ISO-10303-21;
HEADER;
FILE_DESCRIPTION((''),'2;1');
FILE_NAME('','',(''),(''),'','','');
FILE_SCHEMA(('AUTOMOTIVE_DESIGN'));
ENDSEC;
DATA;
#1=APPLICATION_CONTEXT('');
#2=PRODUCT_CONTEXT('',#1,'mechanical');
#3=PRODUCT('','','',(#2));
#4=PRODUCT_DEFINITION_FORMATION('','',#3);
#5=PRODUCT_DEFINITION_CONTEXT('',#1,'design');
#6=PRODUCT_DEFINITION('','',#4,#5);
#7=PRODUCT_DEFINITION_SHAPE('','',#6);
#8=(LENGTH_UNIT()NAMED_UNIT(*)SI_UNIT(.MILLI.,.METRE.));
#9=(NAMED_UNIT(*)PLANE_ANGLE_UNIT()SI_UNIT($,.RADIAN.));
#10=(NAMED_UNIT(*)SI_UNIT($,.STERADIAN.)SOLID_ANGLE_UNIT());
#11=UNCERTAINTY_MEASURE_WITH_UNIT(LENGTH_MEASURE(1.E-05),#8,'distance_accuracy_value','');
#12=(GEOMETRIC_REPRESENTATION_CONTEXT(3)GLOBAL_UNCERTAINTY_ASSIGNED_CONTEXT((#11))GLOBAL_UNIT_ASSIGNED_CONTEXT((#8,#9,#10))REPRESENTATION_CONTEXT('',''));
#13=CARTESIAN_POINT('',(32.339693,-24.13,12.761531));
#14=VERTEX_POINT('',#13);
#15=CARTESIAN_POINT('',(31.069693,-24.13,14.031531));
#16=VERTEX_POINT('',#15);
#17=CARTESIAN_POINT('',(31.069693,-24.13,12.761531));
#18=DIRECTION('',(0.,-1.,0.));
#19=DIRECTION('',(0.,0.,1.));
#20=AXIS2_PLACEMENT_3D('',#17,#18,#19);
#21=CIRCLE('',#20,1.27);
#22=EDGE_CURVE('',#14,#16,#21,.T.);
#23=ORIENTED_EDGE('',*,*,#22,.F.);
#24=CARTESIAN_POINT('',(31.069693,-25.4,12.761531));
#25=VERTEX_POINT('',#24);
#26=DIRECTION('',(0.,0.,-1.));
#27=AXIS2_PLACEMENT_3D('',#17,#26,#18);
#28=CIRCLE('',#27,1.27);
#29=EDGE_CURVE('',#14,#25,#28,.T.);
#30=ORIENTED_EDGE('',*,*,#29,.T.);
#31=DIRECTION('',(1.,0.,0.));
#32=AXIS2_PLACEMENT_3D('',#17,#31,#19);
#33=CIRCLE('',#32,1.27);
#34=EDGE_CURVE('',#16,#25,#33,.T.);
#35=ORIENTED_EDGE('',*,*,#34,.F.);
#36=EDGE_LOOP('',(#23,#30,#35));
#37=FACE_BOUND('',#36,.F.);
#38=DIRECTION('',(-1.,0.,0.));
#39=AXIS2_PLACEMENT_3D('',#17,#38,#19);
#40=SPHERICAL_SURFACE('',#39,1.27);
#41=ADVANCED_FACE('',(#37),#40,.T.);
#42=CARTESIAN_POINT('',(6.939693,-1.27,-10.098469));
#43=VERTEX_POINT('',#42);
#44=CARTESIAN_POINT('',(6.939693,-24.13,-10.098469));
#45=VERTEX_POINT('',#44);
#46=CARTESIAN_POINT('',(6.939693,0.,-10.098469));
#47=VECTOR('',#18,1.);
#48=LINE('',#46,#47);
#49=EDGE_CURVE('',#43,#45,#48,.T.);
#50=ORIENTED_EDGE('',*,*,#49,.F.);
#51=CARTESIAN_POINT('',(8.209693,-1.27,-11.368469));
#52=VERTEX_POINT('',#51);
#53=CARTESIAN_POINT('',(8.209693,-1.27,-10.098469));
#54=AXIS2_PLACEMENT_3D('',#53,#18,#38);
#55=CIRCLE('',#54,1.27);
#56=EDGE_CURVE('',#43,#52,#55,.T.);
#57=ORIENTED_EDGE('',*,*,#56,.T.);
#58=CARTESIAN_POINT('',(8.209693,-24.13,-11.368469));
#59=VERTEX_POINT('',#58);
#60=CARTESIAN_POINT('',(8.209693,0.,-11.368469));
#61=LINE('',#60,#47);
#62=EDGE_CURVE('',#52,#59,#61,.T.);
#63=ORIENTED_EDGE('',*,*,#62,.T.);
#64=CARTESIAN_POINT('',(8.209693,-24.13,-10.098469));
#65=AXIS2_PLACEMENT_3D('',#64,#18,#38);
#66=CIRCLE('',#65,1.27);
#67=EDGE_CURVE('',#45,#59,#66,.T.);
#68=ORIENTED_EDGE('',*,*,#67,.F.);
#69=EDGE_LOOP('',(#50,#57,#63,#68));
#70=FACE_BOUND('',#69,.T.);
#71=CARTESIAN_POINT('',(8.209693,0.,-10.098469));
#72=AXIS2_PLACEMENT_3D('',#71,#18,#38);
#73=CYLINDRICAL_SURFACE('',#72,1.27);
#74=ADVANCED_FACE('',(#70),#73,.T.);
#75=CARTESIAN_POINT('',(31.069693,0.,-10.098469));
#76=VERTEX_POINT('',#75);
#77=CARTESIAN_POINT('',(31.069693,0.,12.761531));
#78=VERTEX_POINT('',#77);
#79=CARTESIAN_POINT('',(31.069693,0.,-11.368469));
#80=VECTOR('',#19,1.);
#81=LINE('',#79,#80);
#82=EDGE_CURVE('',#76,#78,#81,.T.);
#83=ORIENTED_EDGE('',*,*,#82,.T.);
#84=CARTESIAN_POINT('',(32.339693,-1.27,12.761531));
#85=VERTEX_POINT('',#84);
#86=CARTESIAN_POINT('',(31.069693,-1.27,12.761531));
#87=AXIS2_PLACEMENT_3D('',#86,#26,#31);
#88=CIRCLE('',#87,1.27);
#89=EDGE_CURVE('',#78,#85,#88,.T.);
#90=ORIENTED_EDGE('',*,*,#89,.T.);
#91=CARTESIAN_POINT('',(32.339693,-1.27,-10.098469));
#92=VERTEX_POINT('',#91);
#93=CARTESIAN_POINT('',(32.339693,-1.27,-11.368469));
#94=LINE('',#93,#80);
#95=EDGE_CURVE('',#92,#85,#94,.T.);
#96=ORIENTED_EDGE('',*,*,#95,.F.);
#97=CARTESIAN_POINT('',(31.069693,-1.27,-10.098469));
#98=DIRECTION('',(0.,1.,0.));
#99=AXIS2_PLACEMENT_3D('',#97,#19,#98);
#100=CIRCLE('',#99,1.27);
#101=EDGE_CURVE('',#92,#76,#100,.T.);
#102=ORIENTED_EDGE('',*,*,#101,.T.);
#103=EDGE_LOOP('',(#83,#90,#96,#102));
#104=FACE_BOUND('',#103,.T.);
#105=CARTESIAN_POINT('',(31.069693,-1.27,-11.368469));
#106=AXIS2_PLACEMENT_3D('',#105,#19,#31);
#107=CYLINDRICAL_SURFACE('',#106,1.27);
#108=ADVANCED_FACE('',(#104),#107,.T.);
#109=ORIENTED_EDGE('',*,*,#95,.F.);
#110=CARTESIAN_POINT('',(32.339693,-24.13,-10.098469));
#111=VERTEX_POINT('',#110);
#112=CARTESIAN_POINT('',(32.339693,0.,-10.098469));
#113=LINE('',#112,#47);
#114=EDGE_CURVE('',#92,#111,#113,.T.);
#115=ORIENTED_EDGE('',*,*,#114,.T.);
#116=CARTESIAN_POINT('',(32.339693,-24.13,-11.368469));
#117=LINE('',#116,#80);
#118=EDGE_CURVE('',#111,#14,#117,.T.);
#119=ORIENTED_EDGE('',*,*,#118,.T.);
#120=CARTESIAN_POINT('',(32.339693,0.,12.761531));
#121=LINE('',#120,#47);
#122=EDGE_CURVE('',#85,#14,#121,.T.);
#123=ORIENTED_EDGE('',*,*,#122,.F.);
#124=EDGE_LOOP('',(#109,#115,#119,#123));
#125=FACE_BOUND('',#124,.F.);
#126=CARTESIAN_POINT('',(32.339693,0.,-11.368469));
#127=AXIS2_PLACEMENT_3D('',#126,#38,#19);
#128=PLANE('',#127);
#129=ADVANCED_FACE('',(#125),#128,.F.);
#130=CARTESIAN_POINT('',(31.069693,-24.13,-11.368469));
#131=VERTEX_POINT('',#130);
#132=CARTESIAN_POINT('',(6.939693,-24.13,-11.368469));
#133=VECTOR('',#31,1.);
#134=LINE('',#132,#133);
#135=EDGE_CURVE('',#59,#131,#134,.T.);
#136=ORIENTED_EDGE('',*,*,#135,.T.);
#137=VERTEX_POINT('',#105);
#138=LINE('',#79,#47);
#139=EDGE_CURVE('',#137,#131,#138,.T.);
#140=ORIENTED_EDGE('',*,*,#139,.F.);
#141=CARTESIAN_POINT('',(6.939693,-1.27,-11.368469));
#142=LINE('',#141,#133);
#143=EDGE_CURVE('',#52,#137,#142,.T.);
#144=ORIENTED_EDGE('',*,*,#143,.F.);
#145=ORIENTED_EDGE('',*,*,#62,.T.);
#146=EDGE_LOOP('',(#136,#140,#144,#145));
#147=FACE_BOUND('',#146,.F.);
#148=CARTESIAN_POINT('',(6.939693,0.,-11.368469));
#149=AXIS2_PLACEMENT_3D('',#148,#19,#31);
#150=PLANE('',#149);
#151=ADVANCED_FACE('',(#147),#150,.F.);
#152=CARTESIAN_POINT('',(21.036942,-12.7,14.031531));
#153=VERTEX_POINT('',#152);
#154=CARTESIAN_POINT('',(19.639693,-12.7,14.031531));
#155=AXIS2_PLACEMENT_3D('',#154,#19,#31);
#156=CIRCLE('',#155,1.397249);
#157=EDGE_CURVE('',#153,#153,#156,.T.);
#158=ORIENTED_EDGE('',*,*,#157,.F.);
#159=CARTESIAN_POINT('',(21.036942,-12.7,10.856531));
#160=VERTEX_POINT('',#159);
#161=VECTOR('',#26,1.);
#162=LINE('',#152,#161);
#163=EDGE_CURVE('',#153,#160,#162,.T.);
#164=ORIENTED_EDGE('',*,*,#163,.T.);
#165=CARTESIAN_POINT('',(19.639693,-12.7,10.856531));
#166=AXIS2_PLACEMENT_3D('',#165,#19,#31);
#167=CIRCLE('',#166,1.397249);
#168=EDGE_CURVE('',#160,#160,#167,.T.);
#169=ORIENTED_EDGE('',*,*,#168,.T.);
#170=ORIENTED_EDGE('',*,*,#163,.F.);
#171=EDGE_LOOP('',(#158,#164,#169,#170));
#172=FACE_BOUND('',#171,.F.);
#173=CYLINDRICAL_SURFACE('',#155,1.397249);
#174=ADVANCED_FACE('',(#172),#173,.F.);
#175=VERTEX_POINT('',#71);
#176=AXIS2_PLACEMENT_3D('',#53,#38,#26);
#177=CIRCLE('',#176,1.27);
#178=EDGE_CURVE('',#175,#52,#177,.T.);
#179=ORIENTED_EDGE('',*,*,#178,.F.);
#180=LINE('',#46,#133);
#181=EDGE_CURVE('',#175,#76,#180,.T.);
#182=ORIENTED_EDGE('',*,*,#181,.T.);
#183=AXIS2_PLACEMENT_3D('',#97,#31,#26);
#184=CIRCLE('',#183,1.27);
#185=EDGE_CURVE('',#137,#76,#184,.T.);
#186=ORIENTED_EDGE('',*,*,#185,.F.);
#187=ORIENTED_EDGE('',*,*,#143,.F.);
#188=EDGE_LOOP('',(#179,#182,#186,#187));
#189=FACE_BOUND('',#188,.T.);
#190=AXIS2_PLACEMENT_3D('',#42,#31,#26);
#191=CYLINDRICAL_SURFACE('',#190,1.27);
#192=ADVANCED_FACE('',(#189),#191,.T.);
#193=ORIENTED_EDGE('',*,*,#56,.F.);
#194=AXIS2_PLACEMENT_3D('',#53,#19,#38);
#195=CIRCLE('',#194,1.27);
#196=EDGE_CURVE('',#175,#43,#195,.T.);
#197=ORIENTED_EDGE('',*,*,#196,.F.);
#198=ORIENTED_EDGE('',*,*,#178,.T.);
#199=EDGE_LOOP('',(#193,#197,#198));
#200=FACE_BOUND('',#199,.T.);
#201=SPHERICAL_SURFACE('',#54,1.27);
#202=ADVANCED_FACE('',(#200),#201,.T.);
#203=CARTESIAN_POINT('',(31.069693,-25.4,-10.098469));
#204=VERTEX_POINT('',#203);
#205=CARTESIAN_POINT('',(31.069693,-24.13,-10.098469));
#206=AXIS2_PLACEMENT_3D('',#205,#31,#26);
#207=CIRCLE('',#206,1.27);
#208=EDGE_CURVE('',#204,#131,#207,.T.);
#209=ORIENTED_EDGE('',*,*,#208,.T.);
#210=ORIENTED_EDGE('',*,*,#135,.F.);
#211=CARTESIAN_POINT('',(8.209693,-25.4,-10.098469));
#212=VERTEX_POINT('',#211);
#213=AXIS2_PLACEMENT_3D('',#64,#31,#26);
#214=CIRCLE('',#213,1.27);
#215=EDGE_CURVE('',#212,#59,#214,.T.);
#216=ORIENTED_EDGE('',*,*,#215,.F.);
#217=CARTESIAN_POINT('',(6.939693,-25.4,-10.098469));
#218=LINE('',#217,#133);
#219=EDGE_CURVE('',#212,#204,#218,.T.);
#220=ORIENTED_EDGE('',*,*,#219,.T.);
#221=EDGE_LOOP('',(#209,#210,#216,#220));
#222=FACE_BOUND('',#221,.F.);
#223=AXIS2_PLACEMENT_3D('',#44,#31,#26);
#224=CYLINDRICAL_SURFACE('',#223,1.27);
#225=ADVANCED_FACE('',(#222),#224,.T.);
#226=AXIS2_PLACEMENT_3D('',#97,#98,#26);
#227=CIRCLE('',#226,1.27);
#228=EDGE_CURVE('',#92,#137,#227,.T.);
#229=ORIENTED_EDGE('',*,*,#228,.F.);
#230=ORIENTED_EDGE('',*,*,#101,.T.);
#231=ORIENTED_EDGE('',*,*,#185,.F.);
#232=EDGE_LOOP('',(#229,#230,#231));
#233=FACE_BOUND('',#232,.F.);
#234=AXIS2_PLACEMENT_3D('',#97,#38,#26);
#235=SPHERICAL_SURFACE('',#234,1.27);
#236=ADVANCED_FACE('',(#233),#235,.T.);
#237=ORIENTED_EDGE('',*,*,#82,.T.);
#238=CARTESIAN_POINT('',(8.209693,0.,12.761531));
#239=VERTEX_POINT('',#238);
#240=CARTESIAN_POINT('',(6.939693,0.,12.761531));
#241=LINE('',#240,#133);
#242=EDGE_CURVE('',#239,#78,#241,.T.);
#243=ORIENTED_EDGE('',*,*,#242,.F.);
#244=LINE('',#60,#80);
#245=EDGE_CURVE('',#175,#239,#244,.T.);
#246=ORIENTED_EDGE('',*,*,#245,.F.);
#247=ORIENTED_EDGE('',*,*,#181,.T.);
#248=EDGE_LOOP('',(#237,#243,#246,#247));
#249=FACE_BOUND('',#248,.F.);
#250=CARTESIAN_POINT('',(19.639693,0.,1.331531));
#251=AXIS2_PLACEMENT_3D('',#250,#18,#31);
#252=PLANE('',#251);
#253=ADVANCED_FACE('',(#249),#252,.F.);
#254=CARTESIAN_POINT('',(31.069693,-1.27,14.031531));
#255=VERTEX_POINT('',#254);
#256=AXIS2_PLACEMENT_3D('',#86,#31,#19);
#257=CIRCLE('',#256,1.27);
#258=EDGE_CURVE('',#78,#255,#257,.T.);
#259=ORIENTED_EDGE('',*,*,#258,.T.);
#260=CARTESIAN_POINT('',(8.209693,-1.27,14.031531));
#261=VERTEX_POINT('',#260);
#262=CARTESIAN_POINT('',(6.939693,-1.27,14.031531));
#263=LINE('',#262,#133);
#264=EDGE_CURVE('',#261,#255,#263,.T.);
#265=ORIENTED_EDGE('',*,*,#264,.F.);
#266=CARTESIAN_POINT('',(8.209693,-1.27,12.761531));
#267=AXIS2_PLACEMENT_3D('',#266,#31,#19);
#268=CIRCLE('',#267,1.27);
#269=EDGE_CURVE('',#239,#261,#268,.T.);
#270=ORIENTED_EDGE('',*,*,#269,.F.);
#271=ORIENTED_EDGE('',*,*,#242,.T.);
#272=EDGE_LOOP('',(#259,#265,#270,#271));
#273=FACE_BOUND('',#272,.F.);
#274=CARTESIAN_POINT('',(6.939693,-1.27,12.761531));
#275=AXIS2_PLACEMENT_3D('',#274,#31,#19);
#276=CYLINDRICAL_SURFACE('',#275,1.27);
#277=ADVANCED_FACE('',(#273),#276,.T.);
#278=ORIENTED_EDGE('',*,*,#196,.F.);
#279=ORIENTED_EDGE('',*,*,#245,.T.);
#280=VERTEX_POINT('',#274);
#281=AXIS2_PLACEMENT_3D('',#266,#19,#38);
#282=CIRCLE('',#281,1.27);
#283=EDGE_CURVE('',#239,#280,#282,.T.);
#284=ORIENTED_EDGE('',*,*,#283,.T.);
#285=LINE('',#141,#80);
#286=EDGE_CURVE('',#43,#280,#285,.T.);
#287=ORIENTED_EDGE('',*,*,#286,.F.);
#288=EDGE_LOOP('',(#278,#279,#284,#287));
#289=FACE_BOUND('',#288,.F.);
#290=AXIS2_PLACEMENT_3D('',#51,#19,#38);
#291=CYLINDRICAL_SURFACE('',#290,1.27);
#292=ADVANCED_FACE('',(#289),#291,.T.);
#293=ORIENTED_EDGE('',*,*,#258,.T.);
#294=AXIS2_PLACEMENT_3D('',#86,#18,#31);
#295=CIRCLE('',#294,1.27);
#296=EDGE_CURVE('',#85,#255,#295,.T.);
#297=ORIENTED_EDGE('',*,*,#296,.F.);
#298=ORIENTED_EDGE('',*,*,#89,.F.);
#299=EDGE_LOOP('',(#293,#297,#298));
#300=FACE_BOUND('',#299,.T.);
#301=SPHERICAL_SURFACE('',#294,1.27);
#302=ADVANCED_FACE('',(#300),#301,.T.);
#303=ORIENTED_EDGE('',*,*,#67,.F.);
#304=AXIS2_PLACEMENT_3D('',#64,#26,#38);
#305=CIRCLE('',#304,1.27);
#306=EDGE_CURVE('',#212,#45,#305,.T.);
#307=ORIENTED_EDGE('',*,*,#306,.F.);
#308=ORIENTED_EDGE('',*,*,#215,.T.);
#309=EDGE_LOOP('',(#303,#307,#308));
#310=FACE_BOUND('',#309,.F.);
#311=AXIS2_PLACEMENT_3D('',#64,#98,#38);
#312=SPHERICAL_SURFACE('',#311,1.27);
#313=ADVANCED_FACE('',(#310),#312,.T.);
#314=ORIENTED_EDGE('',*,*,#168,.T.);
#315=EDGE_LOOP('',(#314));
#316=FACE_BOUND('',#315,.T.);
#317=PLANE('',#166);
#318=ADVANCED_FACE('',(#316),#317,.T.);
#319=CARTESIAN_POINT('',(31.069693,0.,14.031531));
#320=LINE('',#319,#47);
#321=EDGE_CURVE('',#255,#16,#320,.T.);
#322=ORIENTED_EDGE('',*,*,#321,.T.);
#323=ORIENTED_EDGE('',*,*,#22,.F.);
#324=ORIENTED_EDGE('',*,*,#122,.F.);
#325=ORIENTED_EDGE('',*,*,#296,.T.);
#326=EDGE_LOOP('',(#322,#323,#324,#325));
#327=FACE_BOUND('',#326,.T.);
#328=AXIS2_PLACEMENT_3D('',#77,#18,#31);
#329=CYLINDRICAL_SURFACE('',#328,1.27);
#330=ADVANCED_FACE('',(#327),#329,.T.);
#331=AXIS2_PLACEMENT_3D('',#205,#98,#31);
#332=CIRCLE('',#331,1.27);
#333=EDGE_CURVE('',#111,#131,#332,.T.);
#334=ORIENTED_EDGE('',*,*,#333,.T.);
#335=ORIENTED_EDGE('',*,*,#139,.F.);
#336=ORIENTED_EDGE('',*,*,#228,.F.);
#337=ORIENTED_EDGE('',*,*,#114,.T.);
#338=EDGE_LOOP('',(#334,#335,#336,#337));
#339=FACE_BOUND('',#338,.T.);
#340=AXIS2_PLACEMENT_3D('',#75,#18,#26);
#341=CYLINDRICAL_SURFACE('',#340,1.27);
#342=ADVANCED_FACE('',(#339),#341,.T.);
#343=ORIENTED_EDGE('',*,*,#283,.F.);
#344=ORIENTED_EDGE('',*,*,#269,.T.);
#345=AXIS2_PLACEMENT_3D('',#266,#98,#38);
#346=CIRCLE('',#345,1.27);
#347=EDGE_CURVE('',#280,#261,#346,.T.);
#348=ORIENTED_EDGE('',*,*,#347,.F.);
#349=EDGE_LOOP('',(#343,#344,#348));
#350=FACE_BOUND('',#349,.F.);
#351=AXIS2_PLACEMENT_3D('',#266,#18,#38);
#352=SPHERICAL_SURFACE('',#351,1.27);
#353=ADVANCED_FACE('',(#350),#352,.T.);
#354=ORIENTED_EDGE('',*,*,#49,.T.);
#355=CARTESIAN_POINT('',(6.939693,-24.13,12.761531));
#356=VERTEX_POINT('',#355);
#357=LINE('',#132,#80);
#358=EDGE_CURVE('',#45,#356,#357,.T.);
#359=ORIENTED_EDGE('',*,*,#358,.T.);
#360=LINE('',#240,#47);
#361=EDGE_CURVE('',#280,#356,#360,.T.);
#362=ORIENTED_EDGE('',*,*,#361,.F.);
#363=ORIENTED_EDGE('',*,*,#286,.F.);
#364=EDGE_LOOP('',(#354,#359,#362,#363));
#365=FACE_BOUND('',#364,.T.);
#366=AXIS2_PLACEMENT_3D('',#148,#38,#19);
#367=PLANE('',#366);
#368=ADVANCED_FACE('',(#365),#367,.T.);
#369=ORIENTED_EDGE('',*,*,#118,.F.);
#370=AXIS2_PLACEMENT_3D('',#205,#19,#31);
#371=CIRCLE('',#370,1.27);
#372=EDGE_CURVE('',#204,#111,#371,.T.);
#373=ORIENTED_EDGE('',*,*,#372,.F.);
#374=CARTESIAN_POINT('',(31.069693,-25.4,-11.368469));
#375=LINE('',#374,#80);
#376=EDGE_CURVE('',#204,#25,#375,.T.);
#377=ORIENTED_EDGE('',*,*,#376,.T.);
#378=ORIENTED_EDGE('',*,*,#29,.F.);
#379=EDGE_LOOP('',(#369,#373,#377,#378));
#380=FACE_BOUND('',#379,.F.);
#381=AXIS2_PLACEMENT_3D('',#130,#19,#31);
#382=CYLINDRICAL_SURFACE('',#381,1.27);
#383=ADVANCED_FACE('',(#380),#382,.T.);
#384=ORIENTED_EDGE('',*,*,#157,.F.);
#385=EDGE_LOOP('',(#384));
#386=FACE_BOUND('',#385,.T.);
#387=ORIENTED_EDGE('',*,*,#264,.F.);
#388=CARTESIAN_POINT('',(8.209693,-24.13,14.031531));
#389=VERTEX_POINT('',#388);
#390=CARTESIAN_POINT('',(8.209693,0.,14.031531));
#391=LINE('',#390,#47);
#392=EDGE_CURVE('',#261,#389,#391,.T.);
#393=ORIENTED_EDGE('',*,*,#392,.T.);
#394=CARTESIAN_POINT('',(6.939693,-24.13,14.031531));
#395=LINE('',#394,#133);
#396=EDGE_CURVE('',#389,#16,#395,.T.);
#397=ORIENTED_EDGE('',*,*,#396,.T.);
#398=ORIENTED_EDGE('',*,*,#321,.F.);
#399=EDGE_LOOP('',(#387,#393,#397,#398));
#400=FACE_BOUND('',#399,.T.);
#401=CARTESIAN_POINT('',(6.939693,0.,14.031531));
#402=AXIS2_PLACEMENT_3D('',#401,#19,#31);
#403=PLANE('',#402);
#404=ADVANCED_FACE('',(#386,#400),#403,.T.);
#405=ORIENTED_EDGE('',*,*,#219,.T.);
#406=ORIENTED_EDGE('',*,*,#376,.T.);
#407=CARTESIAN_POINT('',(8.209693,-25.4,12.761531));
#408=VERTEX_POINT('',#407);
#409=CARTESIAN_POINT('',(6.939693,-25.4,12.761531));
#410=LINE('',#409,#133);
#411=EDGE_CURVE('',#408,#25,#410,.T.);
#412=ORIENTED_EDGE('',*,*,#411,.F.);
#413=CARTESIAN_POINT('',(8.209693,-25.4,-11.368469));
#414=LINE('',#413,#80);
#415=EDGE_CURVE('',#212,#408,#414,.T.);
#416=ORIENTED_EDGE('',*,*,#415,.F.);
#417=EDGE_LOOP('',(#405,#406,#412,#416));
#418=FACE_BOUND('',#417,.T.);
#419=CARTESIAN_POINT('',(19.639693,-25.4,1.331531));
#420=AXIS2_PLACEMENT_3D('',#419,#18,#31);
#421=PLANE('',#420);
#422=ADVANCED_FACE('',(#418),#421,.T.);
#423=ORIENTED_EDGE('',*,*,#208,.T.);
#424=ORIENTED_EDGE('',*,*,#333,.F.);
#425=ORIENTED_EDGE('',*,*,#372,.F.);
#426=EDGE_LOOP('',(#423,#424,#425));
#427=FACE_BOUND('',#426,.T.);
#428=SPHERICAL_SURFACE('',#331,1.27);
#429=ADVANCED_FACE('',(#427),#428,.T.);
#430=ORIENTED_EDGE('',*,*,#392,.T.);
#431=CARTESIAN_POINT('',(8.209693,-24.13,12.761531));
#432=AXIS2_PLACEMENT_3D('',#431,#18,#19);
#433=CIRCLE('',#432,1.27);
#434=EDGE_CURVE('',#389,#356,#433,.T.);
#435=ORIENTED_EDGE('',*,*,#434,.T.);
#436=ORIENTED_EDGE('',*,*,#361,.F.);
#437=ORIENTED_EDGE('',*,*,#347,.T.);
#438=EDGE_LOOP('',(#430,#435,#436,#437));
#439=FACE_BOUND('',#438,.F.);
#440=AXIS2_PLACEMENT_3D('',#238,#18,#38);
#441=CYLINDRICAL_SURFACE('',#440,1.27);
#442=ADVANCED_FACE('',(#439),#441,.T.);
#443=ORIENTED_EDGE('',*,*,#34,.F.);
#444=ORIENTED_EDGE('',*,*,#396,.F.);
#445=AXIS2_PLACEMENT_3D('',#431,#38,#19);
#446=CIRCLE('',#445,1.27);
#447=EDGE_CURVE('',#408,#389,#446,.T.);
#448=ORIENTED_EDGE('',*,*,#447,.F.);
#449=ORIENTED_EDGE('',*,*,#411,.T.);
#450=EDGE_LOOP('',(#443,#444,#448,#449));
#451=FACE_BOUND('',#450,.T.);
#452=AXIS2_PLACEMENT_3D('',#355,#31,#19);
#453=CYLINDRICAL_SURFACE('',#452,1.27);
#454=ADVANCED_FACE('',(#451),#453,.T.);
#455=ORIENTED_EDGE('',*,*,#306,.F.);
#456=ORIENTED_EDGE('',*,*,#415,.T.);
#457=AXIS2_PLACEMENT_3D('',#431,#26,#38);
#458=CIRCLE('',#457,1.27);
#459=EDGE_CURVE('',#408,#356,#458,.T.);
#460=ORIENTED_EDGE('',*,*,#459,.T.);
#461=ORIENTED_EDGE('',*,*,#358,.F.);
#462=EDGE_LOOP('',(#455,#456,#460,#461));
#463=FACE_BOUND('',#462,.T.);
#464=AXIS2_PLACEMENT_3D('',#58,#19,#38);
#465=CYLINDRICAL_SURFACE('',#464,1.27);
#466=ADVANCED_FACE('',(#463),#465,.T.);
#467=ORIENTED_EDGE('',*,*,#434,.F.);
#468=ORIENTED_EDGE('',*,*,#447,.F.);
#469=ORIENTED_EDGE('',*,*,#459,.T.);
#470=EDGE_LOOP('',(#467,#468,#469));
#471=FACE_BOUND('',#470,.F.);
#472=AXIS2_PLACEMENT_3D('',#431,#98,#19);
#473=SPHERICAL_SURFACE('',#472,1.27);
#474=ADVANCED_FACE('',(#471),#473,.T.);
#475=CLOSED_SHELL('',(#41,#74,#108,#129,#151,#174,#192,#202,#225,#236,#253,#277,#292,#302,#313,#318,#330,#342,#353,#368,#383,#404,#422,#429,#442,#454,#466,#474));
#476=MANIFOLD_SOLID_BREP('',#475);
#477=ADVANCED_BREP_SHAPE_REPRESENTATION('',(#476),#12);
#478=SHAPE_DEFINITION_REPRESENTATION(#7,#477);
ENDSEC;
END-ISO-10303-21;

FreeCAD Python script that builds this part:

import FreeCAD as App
import Part
import Sketcher
from FreeCAD import Vector
Q = App.Units.Quantity

doc = App.newDocument("Part")
body = doc.addObject("PartDesign::Body", "Body")

# Sketch on XZ plane
sketch1 = doc.addObject("Sketcher::SketchObject", "Sketch")
body.addObject(sketch1)
sketch1.AttachmentSupport = (doc.XZ_Plane, [""])
sketch1.MapMode = "FlatFace"
sketch1.addGeometry(Part.LineSegment(Vector(6.939693, 14.031531, 0), Vector(6.939693, -11.368469, 0)), False)
sketch1.addGeometry(Part.LineSegment(Vector(6.939693, -11.368469, 0), Vector(32.339693, -11.368469, 0)), False)
sketch1.addGeometry(Part.LineSegment(Vector(32.339693, -11.368469, 0), Vector(32.339693, 14.031531, 0)), False)
sketch1.addGeometry(Part.LineSegment(Vector(32.339693, 14.031531, 0), Vector(6.939693, 14.031531, 0)), False)
sketch1.addConstraint(Sketcher.Constraint("Coincident", 0, 2, 1, 1))
sketch1.addConstraint(Sketcher.Constraint("Coincident", 1, 2, 2, 1))
sketch1.addConstraint(Sketcher.Constraint("Coincident", 2, 2, 3, 1))
sketch1.addConstraint(Sketcher.Constraint("Coincident", 3, 2, 0, 1))
sketch1.addConstraint(Sketcher.Constraint("Vertical", 0))
sketch1.addConstraint(Sketcher.Constraint("Horizontal", 1))
sketch1.addConstraint(Sketcher.Constraint("Vertical", 2))
sketch1.addConstraint(Sketcher.Constraint("Horizontal", 3))
sketch1.addConstraint(Sketcher.Constraint("Equal", 3, 0))
sketch1.addConstraint(Sketcher.Constraint("DistanceX", 1, 1, 1, 2, Q("1 in")))
sketch1.addConstraint(Sketcher.Constraint("DistanceY", 0, 2, -1, 1, 11.368469))
sketch1.addConstraint(Sketcher.Constraint("DistanceX", -1, 1, 0, 2, 6.939693))
pad1 = doc.addObject("PartDesign::Pad", "Pad")
body.addObject(pad1)
pad1.Profile = sketch1
pad1.Length = Q("1 in")
doc.recompute()

fillet = doc.addObject("PartDesign::Fillet", "Fillet")
body.addObject(fillet)
fillet.Base = (pad1, ["Edge1"])
fillet.UseAllEdges = True
fillet.Radius = Q("0.05 in")

# Sketch on XY plane
sketch2 = doc.addObject("Sketcher::SketchObject", "Sketch001")
body.addObject(sketch2)
sketch2.AttachmentSupport = (doc.XY_Plane, [""])
sketch2.MapMode = "FlatFace"
sketch2.AttachmentOffset = App.Placement(Vector(0, 0, 14.031531), App.Rotation())
sketch2.addGeometry(Part.Circle(Vector(19.639693, -12.7, 0), Vector(0, 0, 1), 1.397249), False)
sketch2.addConstraint(Sketcher.Constraint("DistanceY", 0, 3, -1, 1, Q("0.5 in")))
sketch2.addConstraint(Sketcher.Constraint("Diameter", 0, 2.794498))
sketch2.addConstraint(Sketcher.Constraint("DistanceX", -1, 1, 0, 3, 19.639693))
pocket1 = doc.addObject("PartDesign::Pocket", "Pocket")
body.addObject(pocket1)
pocket1.Profile = sketch2
pocket1.Length = Q("0.125 in")

doc.recompute()
